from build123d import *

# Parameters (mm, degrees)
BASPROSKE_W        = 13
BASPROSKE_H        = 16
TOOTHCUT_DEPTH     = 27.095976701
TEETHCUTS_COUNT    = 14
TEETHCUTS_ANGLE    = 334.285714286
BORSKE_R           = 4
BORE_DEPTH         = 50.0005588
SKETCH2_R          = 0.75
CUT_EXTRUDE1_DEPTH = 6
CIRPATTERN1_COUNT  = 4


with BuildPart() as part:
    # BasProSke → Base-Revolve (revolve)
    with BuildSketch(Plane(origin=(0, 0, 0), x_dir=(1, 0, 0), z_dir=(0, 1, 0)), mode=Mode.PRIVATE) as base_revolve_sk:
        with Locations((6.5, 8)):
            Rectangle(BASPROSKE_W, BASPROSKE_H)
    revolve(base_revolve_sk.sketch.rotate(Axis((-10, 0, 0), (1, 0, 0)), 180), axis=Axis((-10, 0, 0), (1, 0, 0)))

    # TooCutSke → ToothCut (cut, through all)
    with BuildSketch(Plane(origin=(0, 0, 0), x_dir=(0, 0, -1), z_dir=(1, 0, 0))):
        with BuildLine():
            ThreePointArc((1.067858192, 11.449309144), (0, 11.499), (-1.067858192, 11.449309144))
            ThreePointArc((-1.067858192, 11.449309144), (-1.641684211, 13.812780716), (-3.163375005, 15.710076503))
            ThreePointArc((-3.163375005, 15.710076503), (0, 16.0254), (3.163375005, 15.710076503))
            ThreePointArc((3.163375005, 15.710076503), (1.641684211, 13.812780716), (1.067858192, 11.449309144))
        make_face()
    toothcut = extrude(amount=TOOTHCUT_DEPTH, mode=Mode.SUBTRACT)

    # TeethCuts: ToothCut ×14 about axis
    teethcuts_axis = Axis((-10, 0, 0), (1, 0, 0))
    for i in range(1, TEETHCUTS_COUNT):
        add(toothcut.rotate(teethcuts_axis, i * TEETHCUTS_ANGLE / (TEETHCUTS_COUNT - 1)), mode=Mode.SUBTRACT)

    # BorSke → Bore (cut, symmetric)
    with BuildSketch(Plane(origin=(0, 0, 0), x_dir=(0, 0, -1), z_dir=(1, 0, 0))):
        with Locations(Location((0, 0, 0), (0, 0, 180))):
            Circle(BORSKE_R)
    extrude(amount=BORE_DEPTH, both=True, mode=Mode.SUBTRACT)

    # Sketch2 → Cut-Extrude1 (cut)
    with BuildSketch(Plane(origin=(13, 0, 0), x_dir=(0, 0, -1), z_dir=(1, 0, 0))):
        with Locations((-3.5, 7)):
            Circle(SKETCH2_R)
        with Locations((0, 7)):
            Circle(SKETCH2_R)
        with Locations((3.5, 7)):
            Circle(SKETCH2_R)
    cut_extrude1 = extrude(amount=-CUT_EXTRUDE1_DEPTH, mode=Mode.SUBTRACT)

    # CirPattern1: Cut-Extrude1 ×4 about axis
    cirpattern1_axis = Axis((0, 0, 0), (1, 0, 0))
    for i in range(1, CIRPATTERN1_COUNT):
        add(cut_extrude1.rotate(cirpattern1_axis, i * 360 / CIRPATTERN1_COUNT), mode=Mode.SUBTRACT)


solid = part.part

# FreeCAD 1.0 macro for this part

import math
import FreeCAD as App
import Part
import Sketcher

V = App.Vector


def add_polygon(sketch, points):
    """Adds a closed chain of lines whose ends are joined by coincident constraints."""
    first, n = sketch.GeometryCount, len(points)
    for a, b in zip(points, points[1:] + points[:1]):
        sketch.addGeometry(Part.LineSegment(App.Vector(*a, 0), App.Vector(*b, 0)), False)
    for i in range(n):
        sketch.addConstraint(Sketcher.Constraint("Coincident", first + i, 2, first + (i + 1) % n, 1))

doc = App.newDocument("Part")
body = doc.addObject("PartDesign::Body", "Body")

sketch1 = doc.addObject("Sketcher::SketchObject", "Sketch")
body.addObject(sketch1)
sketch1.AttachmentSupport = (doc.XZ_Plane, [""])
sketch1.MapMode = "FlatFace"
add_polygon(sketch1, [(0, -16), (0, 0), (13, 0), (13, -16)])
sketch1.addConstraint(Sketcher.Constraint("Vertical", 0))
sketch1.addConstraint(Sketcher.Constraint("Horizontal", 1))
sketch1.addConstraint(Sketcher.Constraint("Vertical", 2))
sketch1.addConstraint(Sketcher.Constraint("Horizontal", 3))
sketch1.addConstraint(Sketcher.Constraint("Coincident", 0, 2, -1, 1))
sketch1.addConstraint(Sketcher.Constraint("DistanceX", 1, 1, 1, 2, 13.0))
sketch1.addConstraint(Sketcher.Constraint("DistanceY", 0, 1, 0, 2, 16.0))
revolution = doc.addObject("PartDesign::Revolution", "Revolution")
body.addObject(revolution)
revolution.Profile = sketch1
revolution.ReferenceAxis = (sketch1, ["H_Axis"])
revolution.Angle = 360

sketch2 = doc.addObject("Sketcher::SketchObject", "Sketch001")
body.addObject(sketch2)
sketch2.AttachmentSupport = (doc.YZ_Plane, [""])
sketch2.MapMode = "FlatFace"
sketch2.addGeometry(Part.ArcOfCircle(Part.Circle(V(0, 0, 0), V(0, 0, 1), 11.499), math.radians(-5.328468), math.radians(5.328468)), False)
sketch2.addGeometry(Part.ArcOfCircle(Part.Circle(V(11.341336, -6.666817, 0), V(0, 0, 1), 5.6), math.radians(38.727317), math.radians(88.895217)), False)
sketch2.addGeometry(Part.ArcOfCircle(Part.Circle(V(0, 0, 0), V(0, 0, 1), 16.0254), math.radians(-11.384817), math.radians(11.384817)), False)
sketch2.addGeometry(Part.ArcOfCircle(Part.Circle(V(11.341336, 6.666817, 0), V(0, 0, 1), 5.6), math.radians(-88.895217), math.radians(-38.727317)), False)
sketch2.addConstraint(Sketcher.Constraint("Coincident", 0, 1, 1, 2))
sketch2.addConstraint(Sketcher.Constraint("Coincident", 1, 1, 2, 1))
sketch2.addConstraint(Sketcher.Constraint("Coincident", 2, 2, 3, 2))
sketch2.addConstraint(Sketcher.Constraint("Coincident", 3, 1, 0, 2))
sketch2.addConstraint(Sketcher.Constraint("Coincident", 0, 3, -1, 1))
sketch2.addConstraint(Sketcher.Constraint("Coincident", 2, 3, -1, 1))
sketch2.addConstraint(Sketcher.Constraint("Equal", 1, 3))
sketch2.addConstraint(Sketcher.Constraint("Symmetric", 1, 3, 3, 3, -1))
sketch2.addConstraint(Sketcher.Constraint("Radius", 1, 5.6))
sketch2.addConstraint(Sketcher.Constraint("Radius", 0, 11.499))
sketch2.addConstraint(Sketcher.Constraint("Radius", 2, 16.0254))
sketch2.addConstraint(Sketcher.Constraint("DistanceX", -1, 1, 0, 1, 11.449309))
sketch2.addConstraint(Sketcher.Constraint("DistanceX", 1, 3, 1, 1, 4.36874))
pocket1 = doc.addObject("PartDesign::Pocket", "Pocket")
body.addObject(pocket1)
pocket1.Profile = sketch2
pocket1.Type = "ThroughAll"
pocket1.Reversed = True
doc.recompute()

polarpattern = doc.addObject("PartDesign::PolarPattern", "PolarPattern")
body.addObject(polarpattern)
polarpattern.Originals = [pocket1]
polarpattern.Axis = (doc.X_Axis, [""])
polarpattern.Angle = 360
polarpattern.Occurrences = 14
body.Tip = polarpattern

sketch3 = doc.addObject("Sketcher::SketchObject", "Sketch002")
body.addObject(sketch3)
sketch3.AttachmentSupport = (doc.YZ_Plane, [""])
sketch3.MapMode = "FlatFace"
sketch3.addGeometry(Part.Circle(V(0, 0, 0), V(0, 0, 1), 4), False)
sketch3.addConstraint(Sketcher.Constraint("Coincident", 0, 3, -1, 1))
sketch3.addConstraint(Sketcher.Constraint("Diameter", 0, 8.0))
pocket2 = doc.addObject("PartDesign::Pocket", "Pocket001")
body.addObject(pocket2)
pocket2.Profile = sketch3
pocket2.Length = 100.001118
pocket2.Midplane = True

sketch4 = doc.addObject("Sketcher::SketchObject", "Sketch003")
body.addObject(sketch4)
sketch4.AttachmentSupport = (doc.YZ_Plane, [""])
sketch4.MapMode = "FlatFace"
sketch4.AttachmentOffset = App.Placement(V(0, 0, 13), App.Rotation())
sketch4.addGeometry(Part.Circle(V(7, 3.5, 0), V(0, 0, 1), 0.75), False)
sketch4.addGeometry(Part.Circle(V(7, 0, 0), V(0, 0, 1), 0.75), False)
sketch4.addGeometry(Part.Circle(V(7, -3.5, 0), V(0, 0, 1), 0.75), False)
sketch4.addConstraint(Sketcher.Constraint("Equal", 0, 1))
sketch4.addConstraint(Sketcher.Constraint("Equal", 1, 2))
sketch4.addConstraint(Sketcher.Constraint("Symmetric", 0, 3, 2, 3, -1))
sketch4.addConstraint(Sketcher.Constraint("PointOnObject", 1, 3, -1))
sketch4.addConstraint(Sketcher.Constraint("Vertical", 0, 3, 1, 3))
sketch4.addConstraint(Sketcher.Constraint("Diameter", 0, 1.5))
sketch4.addConstraint(Sketcher.Constraint("DistanceX", -1, 1, 0, 3, 7.0))
sketch4.addConstraint(Sketcher.Constraint("DistanceY", 2, 3, 0, 3, 7.0))
pocket3 = doc.addObject("PartDesign::Pocket", "Pocket002")
body.addObject(pocket3)
pocket3.Profile = sketch4
pocket3.Length = 6
doc.recompute()

polarpattern2 = doc.addObject("PartDesign::PolarPattern", "PolarPattern001")
body.addObject(polarpattern2)
polarpattern2.Originals = [pocket3]
polarpattern2.Axis = (doc.X_Axis, [""])
polarpattern2.Angle = 360
polarpattern2.Occurrences = 4
body.Tip = polarpattern2

doc.recompute()
